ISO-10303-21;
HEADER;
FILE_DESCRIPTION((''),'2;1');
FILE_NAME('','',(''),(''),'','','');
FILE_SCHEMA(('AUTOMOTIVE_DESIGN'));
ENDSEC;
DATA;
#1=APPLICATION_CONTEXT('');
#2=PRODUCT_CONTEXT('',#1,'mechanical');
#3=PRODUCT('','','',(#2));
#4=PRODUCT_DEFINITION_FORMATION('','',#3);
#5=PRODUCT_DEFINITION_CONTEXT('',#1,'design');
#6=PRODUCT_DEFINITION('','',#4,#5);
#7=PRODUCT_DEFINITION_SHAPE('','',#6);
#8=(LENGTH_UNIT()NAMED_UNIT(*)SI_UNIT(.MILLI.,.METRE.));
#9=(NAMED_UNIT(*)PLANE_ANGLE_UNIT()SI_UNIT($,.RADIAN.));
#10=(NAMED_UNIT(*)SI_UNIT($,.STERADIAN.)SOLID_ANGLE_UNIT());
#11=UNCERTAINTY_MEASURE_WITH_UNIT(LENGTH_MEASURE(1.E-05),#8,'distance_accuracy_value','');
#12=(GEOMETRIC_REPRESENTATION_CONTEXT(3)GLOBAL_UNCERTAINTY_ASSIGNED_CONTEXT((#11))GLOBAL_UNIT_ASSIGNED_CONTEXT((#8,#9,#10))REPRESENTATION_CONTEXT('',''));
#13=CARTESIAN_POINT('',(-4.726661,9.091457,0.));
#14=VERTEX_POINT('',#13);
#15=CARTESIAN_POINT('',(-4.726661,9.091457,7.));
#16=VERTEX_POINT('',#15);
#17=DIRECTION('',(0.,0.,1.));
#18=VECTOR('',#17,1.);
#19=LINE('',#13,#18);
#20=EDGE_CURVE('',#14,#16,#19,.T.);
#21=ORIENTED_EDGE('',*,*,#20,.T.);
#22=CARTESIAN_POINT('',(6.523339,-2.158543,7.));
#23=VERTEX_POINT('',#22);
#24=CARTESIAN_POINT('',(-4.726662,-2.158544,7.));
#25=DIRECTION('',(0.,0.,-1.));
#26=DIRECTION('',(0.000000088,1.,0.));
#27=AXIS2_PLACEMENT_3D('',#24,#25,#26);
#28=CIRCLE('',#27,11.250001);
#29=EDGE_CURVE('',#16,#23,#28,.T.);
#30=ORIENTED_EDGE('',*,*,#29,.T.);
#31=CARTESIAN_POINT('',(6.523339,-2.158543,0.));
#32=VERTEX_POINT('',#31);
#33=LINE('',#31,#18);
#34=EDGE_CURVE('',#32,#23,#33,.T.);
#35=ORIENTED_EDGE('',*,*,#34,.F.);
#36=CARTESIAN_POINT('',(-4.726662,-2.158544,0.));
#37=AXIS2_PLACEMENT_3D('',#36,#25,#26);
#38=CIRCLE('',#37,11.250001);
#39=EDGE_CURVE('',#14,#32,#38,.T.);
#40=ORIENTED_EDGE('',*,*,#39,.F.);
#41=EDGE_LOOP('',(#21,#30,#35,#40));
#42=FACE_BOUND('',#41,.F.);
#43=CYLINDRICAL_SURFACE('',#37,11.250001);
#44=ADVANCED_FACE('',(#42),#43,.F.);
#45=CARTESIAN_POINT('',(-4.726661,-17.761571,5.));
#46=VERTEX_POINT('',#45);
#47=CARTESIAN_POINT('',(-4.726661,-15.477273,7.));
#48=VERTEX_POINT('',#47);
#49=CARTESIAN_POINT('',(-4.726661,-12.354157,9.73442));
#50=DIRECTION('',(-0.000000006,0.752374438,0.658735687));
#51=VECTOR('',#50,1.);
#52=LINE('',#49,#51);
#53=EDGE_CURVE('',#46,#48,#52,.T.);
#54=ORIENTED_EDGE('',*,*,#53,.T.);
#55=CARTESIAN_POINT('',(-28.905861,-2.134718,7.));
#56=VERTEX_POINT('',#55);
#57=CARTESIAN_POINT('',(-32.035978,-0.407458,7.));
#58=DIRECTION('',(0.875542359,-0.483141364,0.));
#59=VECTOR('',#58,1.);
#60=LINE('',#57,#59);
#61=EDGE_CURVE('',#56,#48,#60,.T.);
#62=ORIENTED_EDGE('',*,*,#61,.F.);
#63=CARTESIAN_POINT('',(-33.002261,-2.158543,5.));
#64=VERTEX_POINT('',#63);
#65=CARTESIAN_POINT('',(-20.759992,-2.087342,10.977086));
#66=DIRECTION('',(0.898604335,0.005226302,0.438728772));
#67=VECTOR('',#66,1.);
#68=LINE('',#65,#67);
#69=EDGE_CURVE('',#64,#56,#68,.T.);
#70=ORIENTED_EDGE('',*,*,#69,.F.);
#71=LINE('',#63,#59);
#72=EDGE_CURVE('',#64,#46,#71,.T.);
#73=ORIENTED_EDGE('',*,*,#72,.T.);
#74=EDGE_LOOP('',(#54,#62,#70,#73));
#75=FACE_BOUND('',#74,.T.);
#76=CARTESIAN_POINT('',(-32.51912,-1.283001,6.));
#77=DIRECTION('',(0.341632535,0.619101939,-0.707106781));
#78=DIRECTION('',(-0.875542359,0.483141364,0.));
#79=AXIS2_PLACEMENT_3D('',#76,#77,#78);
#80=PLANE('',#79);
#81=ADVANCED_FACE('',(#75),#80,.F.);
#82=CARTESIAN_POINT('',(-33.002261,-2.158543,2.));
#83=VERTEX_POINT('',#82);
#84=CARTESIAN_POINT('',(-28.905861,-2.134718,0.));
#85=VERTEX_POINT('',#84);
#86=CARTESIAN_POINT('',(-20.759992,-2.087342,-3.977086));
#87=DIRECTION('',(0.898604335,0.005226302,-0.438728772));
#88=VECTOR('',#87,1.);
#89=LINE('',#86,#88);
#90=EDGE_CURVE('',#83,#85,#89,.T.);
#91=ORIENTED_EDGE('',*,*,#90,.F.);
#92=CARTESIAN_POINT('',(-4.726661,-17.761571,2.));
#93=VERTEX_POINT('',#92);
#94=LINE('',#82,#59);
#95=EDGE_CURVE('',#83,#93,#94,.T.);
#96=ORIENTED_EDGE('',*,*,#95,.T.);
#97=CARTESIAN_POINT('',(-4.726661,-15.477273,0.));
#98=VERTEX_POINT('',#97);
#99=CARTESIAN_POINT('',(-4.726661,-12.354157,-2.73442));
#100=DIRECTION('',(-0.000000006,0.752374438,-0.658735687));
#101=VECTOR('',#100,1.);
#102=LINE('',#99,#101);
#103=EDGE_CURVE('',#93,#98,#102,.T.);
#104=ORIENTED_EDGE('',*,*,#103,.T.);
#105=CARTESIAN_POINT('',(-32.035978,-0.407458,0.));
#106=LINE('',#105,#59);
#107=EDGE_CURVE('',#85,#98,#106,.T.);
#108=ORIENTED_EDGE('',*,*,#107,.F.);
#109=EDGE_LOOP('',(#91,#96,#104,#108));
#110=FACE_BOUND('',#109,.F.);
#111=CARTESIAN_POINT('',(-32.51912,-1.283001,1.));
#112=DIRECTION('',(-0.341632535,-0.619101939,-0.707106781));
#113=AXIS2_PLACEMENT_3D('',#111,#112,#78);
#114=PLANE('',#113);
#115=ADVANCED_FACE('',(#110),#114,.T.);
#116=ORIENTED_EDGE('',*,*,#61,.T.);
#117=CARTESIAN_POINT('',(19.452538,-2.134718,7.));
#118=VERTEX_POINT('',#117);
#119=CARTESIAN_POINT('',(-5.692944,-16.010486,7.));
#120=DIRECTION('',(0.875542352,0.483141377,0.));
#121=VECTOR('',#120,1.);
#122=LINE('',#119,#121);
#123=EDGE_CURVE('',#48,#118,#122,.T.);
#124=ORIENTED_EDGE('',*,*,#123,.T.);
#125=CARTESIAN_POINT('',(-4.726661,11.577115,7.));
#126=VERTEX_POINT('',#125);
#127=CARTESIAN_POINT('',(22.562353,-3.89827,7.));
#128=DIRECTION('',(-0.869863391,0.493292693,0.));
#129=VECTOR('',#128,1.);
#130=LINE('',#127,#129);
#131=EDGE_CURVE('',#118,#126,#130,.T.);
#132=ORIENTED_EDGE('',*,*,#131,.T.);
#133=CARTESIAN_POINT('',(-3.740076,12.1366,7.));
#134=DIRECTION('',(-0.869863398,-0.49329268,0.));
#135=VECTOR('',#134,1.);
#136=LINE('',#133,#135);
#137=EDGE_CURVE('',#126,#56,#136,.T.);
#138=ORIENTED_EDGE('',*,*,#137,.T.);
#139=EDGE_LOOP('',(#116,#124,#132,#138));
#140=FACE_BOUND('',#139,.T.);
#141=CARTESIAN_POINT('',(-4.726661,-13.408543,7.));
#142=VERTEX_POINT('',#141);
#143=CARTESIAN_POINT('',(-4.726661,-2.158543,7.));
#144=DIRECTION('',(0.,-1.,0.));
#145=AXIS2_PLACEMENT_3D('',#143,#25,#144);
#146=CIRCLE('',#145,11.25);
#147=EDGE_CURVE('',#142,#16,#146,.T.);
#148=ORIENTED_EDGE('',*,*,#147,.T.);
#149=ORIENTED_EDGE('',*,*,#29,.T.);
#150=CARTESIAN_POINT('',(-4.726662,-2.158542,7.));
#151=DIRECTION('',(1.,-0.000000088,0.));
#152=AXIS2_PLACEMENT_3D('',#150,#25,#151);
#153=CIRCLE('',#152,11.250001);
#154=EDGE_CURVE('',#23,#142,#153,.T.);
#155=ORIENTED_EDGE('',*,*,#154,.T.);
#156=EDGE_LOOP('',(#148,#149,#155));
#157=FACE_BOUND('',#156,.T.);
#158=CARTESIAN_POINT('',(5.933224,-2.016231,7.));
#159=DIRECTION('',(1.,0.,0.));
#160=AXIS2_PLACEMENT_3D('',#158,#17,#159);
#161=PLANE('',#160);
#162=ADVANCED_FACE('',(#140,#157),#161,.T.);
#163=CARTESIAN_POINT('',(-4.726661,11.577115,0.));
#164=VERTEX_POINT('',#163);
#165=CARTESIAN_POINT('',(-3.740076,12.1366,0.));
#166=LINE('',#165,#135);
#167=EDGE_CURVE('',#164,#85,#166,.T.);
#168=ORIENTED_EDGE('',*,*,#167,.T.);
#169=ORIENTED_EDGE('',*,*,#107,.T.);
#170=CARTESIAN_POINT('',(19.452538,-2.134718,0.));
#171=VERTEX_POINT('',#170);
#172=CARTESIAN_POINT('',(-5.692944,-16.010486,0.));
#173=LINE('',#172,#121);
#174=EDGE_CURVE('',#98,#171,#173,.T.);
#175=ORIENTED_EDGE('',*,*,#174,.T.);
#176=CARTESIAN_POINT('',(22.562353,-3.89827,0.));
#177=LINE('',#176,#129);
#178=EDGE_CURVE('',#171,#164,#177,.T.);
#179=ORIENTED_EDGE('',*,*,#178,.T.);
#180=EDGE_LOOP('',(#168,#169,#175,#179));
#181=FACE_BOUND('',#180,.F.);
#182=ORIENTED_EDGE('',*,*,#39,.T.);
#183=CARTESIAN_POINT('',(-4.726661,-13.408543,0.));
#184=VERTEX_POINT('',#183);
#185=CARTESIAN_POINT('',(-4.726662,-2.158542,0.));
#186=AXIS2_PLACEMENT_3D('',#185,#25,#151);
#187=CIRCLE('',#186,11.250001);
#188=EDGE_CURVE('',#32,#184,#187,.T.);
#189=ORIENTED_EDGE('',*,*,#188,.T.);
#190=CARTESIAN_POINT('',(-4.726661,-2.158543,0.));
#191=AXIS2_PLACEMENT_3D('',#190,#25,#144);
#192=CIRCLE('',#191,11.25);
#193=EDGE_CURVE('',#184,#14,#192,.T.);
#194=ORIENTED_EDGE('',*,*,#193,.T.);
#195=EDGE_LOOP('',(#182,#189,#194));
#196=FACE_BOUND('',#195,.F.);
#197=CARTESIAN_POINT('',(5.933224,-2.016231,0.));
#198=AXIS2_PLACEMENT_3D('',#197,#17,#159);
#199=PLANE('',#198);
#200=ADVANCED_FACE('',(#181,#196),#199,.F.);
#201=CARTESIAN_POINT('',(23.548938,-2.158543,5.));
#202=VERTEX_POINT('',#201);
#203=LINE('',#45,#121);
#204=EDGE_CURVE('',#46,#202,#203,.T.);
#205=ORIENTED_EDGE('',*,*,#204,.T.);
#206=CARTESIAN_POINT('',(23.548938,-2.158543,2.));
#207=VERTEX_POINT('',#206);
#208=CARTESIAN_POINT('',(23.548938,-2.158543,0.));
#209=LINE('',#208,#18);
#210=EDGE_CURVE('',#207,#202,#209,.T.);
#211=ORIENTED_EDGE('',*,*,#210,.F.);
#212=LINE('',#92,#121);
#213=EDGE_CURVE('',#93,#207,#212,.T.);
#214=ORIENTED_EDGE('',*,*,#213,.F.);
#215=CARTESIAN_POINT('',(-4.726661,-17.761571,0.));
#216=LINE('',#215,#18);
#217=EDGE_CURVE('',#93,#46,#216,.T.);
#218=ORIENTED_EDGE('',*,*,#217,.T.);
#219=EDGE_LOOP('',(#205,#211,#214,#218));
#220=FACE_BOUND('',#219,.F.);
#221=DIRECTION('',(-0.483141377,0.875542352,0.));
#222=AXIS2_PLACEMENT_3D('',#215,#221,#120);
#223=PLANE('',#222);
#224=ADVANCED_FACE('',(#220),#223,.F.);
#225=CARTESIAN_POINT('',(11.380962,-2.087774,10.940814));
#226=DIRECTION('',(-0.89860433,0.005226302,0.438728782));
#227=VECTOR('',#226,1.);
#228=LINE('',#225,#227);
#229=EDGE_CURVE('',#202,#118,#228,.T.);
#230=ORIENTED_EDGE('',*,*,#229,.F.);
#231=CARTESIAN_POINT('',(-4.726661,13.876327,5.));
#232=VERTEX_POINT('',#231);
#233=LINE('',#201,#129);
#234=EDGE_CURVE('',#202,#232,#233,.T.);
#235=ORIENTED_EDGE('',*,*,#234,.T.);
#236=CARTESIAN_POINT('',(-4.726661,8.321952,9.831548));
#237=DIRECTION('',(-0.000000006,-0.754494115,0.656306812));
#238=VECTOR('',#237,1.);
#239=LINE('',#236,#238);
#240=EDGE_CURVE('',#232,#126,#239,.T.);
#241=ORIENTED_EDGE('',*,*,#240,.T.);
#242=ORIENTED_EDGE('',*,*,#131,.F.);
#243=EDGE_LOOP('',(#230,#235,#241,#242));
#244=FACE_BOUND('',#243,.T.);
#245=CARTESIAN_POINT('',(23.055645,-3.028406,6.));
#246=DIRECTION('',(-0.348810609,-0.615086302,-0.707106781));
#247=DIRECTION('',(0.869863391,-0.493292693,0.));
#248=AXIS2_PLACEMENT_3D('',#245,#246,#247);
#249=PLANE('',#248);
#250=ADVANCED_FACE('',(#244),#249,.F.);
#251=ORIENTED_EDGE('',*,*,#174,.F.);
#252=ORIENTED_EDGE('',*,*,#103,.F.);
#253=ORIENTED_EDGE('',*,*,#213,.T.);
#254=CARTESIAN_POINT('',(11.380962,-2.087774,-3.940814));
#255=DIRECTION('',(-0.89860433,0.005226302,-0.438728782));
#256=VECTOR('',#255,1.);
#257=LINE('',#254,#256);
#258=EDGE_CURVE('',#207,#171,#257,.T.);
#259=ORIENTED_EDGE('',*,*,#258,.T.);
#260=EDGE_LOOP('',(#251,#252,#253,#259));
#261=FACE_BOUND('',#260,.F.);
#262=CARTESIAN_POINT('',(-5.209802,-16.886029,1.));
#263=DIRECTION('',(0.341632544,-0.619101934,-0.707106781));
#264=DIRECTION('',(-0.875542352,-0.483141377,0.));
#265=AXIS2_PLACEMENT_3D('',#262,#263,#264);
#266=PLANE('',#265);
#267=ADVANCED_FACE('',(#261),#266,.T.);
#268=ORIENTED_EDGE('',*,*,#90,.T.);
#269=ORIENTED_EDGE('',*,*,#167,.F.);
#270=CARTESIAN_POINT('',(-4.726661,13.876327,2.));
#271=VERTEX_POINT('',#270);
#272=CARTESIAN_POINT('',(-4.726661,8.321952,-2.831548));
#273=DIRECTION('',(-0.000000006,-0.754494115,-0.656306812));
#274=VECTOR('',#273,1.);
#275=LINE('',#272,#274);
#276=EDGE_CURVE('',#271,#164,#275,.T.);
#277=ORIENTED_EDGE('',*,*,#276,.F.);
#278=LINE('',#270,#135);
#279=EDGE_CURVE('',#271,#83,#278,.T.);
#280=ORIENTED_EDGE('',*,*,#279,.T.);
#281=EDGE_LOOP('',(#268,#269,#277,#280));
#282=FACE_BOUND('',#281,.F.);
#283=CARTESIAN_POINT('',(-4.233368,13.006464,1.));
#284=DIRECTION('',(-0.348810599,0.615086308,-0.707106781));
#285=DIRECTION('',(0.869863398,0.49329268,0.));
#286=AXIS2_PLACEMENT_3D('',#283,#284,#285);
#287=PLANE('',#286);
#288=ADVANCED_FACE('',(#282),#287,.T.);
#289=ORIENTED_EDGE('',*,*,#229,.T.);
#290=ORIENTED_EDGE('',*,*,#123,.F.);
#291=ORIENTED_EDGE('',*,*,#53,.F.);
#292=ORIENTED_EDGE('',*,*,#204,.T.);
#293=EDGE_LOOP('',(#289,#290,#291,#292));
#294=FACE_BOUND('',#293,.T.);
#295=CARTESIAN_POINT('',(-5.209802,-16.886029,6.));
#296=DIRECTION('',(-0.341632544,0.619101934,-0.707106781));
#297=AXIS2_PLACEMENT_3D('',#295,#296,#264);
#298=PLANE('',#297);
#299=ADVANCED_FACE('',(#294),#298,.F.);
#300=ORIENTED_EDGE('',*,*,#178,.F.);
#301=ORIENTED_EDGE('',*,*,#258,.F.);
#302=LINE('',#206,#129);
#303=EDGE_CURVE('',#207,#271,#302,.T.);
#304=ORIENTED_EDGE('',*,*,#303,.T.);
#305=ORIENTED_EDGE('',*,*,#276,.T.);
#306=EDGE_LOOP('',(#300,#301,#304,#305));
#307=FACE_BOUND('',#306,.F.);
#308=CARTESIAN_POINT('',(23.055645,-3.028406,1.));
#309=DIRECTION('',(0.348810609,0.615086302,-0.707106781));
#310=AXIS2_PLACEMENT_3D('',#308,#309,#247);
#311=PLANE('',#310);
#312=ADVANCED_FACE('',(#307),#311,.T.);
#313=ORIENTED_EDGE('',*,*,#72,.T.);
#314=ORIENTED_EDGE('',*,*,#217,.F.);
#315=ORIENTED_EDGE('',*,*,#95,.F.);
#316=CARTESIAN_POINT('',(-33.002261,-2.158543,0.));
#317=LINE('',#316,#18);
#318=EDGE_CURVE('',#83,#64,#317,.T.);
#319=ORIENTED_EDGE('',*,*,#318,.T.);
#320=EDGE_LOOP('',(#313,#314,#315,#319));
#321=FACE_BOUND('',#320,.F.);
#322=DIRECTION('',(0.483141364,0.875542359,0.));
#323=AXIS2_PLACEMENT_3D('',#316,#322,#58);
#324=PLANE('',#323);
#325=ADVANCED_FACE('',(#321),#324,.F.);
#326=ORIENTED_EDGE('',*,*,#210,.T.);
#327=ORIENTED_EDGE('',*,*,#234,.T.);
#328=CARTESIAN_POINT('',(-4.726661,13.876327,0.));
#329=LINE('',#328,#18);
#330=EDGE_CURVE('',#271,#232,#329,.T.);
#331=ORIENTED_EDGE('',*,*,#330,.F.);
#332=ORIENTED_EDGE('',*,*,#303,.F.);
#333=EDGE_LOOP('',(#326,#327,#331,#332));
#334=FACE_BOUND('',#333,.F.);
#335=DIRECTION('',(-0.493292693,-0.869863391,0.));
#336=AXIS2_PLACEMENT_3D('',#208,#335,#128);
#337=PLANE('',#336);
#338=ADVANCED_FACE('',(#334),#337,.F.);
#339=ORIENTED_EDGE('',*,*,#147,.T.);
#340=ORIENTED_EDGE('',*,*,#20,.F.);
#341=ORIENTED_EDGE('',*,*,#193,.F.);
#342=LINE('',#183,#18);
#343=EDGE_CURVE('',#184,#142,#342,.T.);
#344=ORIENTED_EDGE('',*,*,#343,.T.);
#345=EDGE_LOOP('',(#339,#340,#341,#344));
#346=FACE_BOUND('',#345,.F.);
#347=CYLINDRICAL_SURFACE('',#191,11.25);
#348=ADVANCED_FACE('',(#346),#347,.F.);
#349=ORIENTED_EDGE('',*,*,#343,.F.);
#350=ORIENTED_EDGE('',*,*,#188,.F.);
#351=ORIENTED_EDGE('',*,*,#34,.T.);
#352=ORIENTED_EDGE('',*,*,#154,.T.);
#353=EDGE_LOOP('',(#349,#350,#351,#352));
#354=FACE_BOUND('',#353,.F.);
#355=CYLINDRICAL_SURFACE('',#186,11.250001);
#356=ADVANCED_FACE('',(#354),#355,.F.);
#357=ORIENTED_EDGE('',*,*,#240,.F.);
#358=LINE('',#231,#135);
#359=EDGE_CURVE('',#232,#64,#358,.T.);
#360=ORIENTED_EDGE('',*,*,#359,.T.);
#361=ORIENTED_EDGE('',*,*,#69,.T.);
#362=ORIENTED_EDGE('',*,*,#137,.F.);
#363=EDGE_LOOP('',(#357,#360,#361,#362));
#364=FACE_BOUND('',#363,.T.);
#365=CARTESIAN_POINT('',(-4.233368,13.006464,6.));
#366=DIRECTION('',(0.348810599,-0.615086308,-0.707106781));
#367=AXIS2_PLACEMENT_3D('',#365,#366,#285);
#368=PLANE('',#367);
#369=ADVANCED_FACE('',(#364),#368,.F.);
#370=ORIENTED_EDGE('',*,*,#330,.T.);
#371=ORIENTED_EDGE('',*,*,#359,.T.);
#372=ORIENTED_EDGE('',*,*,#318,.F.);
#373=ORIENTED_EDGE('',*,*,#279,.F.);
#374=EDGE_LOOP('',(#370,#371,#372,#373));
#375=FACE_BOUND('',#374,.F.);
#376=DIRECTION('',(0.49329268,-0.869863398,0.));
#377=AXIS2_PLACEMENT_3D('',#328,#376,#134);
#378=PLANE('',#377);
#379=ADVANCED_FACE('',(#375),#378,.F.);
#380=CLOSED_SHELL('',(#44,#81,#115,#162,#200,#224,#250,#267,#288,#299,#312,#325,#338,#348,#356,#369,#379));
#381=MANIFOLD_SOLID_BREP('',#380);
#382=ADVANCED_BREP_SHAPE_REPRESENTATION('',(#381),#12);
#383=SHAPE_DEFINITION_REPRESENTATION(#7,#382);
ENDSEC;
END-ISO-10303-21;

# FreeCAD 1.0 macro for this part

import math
import FreeCAD as App
import Part
import Sketcher

V = App.Vector
Q = App.Units.Quantity


def edges_at(feature, points):
    """Names of the edges that pass closest to the given points."""
    edges = feature.Shape.Edges
    near = lambda p: min(range(len(edges)), key=lambda i: edges[i].distToShape(Part.Vertex(*p))[0])
    return sorted({f"Edge{near(p) + 1}" for p in points})

doc = App.newDocument("Part")
body = doc.addObject("PartDesign::Body", "Body")

sketch1 = doc.addObject("Sketcher::SketchObject", "Sketch")
body.addObject(sketch1)
sketch1.AttachmentSupport = (doc.XY_Plane, [""])
sketch1.MapMode = "FlatFace"
sketch1.addGeometry([
    Part.LineSegment(V(-5, -18, 0), V(24, -2, 0)),
    Part.LineSegment(V(24, -2, 0), V(-5, 14, 0)),
    Part.LineSegment(V(-5, 14, 0), V(-33, -2, 0)),
    Part.LineSegment(V(-33, -2, 0), V(-5, -18, 0)),
    Part.ArcOfCircle(Part.Circle(V(-5, -2, 0), V(0, 0, 1), 11), math.radians(0), math.radians(90)),
    Part.ArcOfCircle(Part.Circle(V(-5, -2, 0), V(0, 0, 1), 11), math.radians(-90), math.radians(0)),
    Part.ArcOfCircle(Part.Circle(V(-5, -2, 0), V(0, 0, 1), 11), math.radians(90), math.radians(270)),
], False)
sketch1.addConstraint([
    Sketcher.Constraint("Coincident", 0, 2, 1, 1),
    Sketcher.Constraint("Coincident", 1, 2, 2, 1),
    Sketcher.Constraint("Coincident", 2, 2, 3, 1),
    Sketcher.Constraint("Coincident", 3, 2, 0, 1),
    Sketcher.Constraint("Tangent", 4, 1, 5, 2),
    Sketcher.Constraint("Tangent", 5, 1, 6, 2),
    Sketcher.Constraint("Tangent", 6, 1, 4, 2),
    Sketcher.Constraint("Horizontal", 6, 3, 0, 2),
    Sketcher.Constraint("Horizontal", 0, 2, 2, 2),
    Sketcher.Constraint("Horizontal", 2, 2, 4, 1),
    Sketcher.Constraint("Vertical", 6, 3, 1, 2),
    Sketcher.Constraint("Vertical", 1, 2, 3, 2),
    Sketcher.Constraint("Vertical", 3, 2, 5, 1),
    Sketcher.Constraint("Vertical", 5, 1, 6, 1),
    Sketcher.Constraint("Equal", 1, 2),
    Sketcher.Constraint("Radius", 4, Q("11.250001 mm")),
    Sketcher.Constraint("DistanceX", 6, 3, 0, 2, Q("28.275599 mm")),
    Sketcher.Constraint("DistanceY", 3, 2, 1, 2, Q("31.637898 mm")),
    Sketcher.Constraint("DistanceX", 4, 3, -1, 1, Q("4.726662 mm")),
    Sketcher.Constraint("DistanceY", 3, 2, -1, 1, Q("17.761571 mm")),
    Sketcher.Constraint("DistanceY", 5, 3, 1, 2, Q("16.034869 mm")),
])
pad1 = doc.addObject("PartDesign::Pad", "Pad")
body.addObject(pad1)
pad1.Profile = sketch1
pad1.Length = 7
doc.recompute()

chamfer = doc.addObject("PartDesign::Chamfer", "Chamfer")
body.addObject(chamfer)
chamfer.Base = (pad1, edges_at(pad1, [
    (9.411, 5.859, 7),
    (9.411, 5.859, 0),
    (-18.864, 5.859, 7),
    (-18.864, 5.859, 0),
    (-18.864, -9.96, 7),
    (-18.864, -9.96, 0),
    (9.411, -9.96, 0),
    (9.411, -9.96, 7),
]))
chamfer.Size = 2

doc.recompute()
